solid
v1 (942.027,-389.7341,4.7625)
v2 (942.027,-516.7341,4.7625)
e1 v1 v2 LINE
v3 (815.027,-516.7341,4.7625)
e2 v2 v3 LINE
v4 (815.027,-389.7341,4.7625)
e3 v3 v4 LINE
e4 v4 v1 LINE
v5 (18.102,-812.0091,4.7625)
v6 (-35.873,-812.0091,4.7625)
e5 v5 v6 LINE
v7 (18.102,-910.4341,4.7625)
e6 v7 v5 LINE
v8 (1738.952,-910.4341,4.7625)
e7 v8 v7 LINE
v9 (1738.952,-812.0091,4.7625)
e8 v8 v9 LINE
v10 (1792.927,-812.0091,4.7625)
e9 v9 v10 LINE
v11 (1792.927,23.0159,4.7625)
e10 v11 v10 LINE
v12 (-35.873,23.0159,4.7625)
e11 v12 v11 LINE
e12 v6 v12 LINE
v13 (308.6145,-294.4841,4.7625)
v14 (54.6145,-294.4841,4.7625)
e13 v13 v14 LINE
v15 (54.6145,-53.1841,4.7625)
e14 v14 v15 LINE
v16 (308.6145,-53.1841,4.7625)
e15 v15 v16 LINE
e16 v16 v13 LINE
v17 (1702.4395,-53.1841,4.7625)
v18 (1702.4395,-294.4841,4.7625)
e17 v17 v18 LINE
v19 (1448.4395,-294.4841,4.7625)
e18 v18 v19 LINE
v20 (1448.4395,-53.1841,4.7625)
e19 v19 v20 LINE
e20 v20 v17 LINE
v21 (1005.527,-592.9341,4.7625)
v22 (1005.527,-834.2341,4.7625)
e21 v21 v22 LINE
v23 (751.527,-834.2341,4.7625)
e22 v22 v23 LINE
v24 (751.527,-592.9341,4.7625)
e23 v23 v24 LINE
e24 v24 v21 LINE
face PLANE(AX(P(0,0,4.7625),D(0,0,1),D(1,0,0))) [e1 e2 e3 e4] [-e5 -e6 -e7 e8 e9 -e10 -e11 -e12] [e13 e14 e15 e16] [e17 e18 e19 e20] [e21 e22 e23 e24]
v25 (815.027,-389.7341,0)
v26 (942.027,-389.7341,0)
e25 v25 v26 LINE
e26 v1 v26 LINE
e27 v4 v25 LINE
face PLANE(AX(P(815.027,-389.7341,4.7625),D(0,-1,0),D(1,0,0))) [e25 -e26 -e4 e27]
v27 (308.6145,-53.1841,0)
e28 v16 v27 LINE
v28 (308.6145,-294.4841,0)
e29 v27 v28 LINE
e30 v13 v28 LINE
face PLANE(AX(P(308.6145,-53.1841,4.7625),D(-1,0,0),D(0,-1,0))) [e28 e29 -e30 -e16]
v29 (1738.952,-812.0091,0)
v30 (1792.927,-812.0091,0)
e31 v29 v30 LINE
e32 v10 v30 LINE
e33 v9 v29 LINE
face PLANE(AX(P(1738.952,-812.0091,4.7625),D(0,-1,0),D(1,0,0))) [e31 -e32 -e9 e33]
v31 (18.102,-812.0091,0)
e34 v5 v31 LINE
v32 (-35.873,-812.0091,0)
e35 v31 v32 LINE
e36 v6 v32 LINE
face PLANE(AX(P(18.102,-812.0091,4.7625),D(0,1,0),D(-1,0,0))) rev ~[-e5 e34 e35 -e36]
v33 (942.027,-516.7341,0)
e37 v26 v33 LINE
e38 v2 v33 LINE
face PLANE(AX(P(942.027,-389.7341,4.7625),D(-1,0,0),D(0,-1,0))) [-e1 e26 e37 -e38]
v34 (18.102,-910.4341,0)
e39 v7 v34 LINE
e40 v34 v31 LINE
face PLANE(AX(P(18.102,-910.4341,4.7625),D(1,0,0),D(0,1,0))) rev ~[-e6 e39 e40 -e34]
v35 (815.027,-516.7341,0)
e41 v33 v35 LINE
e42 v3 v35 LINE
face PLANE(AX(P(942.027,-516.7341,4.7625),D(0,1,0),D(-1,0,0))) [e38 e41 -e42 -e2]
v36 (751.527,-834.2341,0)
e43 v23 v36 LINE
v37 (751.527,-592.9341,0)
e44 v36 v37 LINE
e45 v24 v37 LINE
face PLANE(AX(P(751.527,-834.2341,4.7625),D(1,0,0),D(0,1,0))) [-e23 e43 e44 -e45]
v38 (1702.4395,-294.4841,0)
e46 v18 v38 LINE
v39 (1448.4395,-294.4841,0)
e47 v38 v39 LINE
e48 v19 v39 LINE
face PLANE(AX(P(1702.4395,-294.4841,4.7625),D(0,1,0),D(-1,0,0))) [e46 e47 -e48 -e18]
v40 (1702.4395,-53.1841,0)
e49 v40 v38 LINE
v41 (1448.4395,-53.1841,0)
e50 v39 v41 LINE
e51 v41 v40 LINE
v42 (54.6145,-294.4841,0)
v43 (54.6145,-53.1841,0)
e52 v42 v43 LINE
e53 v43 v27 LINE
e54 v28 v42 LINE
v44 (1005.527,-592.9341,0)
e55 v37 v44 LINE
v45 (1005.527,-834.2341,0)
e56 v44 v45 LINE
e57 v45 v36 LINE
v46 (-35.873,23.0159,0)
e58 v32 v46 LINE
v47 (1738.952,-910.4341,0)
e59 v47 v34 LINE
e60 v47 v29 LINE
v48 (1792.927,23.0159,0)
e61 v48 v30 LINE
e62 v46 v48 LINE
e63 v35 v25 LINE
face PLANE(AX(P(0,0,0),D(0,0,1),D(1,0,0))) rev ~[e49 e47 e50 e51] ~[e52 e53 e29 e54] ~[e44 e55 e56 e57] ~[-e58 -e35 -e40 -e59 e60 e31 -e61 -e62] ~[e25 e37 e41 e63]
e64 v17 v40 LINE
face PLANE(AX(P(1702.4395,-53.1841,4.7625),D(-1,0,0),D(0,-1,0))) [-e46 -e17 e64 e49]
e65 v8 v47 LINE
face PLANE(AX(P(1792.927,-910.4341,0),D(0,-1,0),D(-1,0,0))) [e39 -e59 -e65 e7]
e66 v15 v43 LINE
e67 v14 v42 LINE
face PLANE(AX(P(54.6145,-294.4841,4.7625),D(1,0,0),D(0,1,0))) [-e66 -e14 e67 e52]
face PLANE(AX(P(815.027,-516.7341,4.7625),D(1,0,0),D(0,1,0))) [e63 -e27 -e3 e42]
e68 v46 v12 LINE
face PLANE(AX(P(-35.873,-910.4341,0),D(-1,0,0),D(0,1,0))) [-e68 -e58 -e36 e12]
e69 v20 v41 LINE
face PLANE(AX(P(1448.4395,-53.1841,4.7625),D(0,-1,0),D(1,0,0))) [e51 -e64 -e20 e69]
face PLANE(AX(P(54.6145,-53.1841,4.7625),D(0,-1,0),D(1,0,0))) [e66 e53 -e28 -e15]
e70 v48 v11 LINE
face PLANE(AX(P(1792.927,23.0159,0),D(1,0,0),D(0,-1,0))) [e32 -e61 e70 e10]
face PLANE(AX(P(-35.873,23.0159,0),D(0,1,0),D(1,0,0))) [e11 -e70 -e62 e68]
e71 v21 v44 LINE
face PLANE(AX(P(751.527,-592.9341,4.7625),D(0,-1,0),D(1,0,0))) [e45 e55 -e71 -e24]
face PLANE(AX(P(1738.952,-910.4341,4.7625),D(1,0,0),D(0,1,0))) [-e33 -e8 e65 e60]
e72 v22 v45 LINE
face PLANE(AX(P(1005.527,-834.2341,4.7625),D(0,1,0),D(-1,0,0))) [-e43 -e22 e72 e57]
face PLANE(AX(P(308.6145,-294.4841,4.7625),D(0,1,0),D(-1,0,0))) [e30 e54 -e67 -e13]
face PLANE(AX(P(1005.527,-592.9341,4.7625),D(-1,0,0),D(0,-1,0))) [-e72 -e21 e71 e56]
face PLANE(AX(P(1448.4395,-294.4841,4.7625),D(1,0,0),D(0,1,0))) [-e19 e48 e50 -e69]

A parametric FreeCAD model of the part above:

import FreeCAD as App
import Part
import Sketcher
Q = App.Units.Quantity


def add_polygon(sketch, points):
    """Adds a closed chain of lines whose ends are joined by coincident constraints."""
    first, n = sketch.GeometryCount, len(points)
    for a, b in zip(points, points[1:] + points[:1]):
        sketch.addGeometry(Part.LineSegment(App.Vector(*a, 0), App.Vector(*b, 0)), False)
    for i in range(n):
        sketch.addConstraint(Sketcher.Constraint("Coincident", first + i, 2, first + (i + 1) % n, 1))

doc = App.newDocument("Part")
body = doc.addObject("PartDesign::Body", "Body")

sketch1 = doc.addObject("Sketcher::SketchObject", "Sketch")
body.addObject(sketch1)
sketch1.AttachmentSupport = (doc.XY_Plane, [""])
sketch1.MapMode = "FlatFace"
add_polygon(sketch1, [(1792.927, 23.0159), (-35.873, 23.0159), (-35.873, -910.4341), (1792.927, -910.4341)])
sketch1.addConstraint([
    Sketcher.Constraint("Horizontal", 0),
    Sketcher.Constraint("Vertical", 1),
    Sketcher.Constraint("Horizontal", 2),
    Sketcher.Constraint("Vertical", 3),
    Sketcher.Constraint("DistanceX", 0, 2, 0, 1, Q("72 in")),
    Sketcher.Constraint("DistanceY", 1, 2, 1, 1, Q("36.75 in")),
    Sketcher.Constraint("DistanceX", 0, 2, -1, 1, Q("35.873 mm")),
    Sketcher.Constraint("DistanceY", -1, 1, 0, 2, Q("23.016 mm")),
])
pad1 = doc.addObject("PartDesign::Pad", "Pad")
body.addObject(pad1)
pad1.Profile = sketch1
pad1.Length = Q("0.1875 in")

sketch2 = doc.addObject("Sketcher::SketchObject", "Sketch001")
body.addObject(sketch2)
sketch2.AttachmentSupport = (doc.XY_Plane, [""])
sketch2.MapMode = "FlatFace"
sketch2.AttachmentOffset = App.Placement(App.Vector(0, 0, 0.1875 * 25.4), App.Rotation())
add_polygon(sketch2, [(-35.873, -910.4341), (18.102, -910.4341), (18.102, -812.0091), (-35.873, -812.0091)])
add_polygon(sketch2, [(1792.927, -910.4341), (1792.927, -812.0091), (1738.952, -812.0091), (1738.952, -910.4341)])
add_polygon(sketch2, [(308.6145, -53.1841), (54.6145, -53.1841), (54.6145, -294.4841), (308.6145, -294.4841)])
add_polygon(sketch2, [(1005.527, -592.9341), (751.527, -592.9341), (751.527, -834.2341), (1005.527, -834.2341)])
add_polygon(sketch2, [(1702.4395, -53.1841), (1448.4395, -53.1841), (1448.4395, -294.4841), (1702.4395, -294.4841)])
add_polygon(sketch2, [(942.027, -389.7341), (815.027, -389.7341), (815.027, -516.7341), (942.027, -516.7341)])
sketch2.addConstraint([
    Sketcher.Constraint("Horizontal", 0),
    Sketcher.Constraint("Vertical", 1),
    Sketcher.Constraint("Horizontal", 2),
    Sketcher.Constraint("Vertical", 3),
    Sketcher.Constraint("Vertical", 4),
    Sketcher.Constraint("Horizontal", 5),
    Sketcher.Constraint("Vertical", 6),
    Sketcher.Constraint("Horizontal", 7),
    Sketcher.Constraint("Horizontal", 8),
    Sketcher.Constraint("Vertical", 9),
    Sketcher.Constraint("Horizontal", 10),
    Sketcher.Constraint("Vertical", 11),
    Sketcher.Constraint("Horizontal", 12),
    Sketcher.Constraint("Vertical", 13),
    Sketcher.Constraint("Horizontal", 14),
    Sketcher.Constraint("Vertical", 15),
    Sketcher.Constraint("Horizontal", 16),
    Sketcher.Constraint("Vertical", 17),
    Sketcher.Constraint("Horizontal", 18),
    Sketcher.Constraint("Vertical", 19),
    Sketcher.Constraint("Horizontal", 20),
    Sketcher.Constraint("Vertical", 21),
    Sketcher.Constraint("Horizontal", 22),
    Sketcher.Constraint("Vertical", 23),
    Sketcher.Constraint("Horizontal", 2, 2, 4, 2),
    Sketcher.Constraint("Horizontal", 3, 2, 6, 2),
    Sketcher.Constraint("Horizontal", 11, 2, 16, 2),
    Sketcher.Constraint("Horizontal", 10, 2, 17, 2),
    Sketcher.Constraint("Equal", 2, 5),
    Sketcher.Constraint("Equal", 10, 12),
    Sketcher.Constraint("Equal", 14, 16),
    Sketcher.Constraint("Equal", 11, 13),
    Sketcher.Constraint("Equal", 22, 21),
    Sketcher.Constraint("DistanceX", 8, 2, 8, 1, Q("10 in")),
    Sketcher.Constraint("DistanceX", 20, 2, 20, 1, Q("5 in")),
    Sketcher.Constraint("DistanceY", 9, 2, 9, 1, Q("9.5 in")),
    Sketcher.Constraint("DistanceX", 2, 2, 4, 2, Q("72 in")),
    Sketcher.Constraint("DistanceY", 0, 2, 13, 2, Q("3 in")),
    Sketcher.Constraint("DistanceX", 2, 2, 13, 2, Q("31 in")),
    Sketcher.Constraint("DistanceY", 12, 2, 21, 2, Q("3 in")),
    Sketcher.Constraint("DistanceX", 12, 2, 20, 2, Q("2.5 in")),
    Sketcher.Constraint("DistanceX", 0, 1, 0, 2, Q("2.125 in")),
    Sketcher.Constraint("DistanceY", 1, 1, 1, 2, Q("3.875 in")),
    Sketcher.Constraint("DistanceY", 0, 2, 9, 2, Q("24.25 in")),
    Sketcher.Constraint("DistanceX", 2, 2, 8, 2, Q("3.5625 in")),
    Sketcher.Constraint("DistanceX", 18, 2, 4, 2, Q("3.5625 in")),
    Sketcher.Constraint("DistanceX", -1, 1, 0, 2, Q("18.102 mm")),
    Sketcher.Constraint("DistanceY", 0, 2, -1, 1, Q("910.434 mm")),
])
pocket1 = doc.addObject("PartDesign::Pocket", "Pocket")
body.addObject(pocket1)
pocket1.Profile = sketch2
pocket1.Length = Q("1 in")

doc.recompute()
